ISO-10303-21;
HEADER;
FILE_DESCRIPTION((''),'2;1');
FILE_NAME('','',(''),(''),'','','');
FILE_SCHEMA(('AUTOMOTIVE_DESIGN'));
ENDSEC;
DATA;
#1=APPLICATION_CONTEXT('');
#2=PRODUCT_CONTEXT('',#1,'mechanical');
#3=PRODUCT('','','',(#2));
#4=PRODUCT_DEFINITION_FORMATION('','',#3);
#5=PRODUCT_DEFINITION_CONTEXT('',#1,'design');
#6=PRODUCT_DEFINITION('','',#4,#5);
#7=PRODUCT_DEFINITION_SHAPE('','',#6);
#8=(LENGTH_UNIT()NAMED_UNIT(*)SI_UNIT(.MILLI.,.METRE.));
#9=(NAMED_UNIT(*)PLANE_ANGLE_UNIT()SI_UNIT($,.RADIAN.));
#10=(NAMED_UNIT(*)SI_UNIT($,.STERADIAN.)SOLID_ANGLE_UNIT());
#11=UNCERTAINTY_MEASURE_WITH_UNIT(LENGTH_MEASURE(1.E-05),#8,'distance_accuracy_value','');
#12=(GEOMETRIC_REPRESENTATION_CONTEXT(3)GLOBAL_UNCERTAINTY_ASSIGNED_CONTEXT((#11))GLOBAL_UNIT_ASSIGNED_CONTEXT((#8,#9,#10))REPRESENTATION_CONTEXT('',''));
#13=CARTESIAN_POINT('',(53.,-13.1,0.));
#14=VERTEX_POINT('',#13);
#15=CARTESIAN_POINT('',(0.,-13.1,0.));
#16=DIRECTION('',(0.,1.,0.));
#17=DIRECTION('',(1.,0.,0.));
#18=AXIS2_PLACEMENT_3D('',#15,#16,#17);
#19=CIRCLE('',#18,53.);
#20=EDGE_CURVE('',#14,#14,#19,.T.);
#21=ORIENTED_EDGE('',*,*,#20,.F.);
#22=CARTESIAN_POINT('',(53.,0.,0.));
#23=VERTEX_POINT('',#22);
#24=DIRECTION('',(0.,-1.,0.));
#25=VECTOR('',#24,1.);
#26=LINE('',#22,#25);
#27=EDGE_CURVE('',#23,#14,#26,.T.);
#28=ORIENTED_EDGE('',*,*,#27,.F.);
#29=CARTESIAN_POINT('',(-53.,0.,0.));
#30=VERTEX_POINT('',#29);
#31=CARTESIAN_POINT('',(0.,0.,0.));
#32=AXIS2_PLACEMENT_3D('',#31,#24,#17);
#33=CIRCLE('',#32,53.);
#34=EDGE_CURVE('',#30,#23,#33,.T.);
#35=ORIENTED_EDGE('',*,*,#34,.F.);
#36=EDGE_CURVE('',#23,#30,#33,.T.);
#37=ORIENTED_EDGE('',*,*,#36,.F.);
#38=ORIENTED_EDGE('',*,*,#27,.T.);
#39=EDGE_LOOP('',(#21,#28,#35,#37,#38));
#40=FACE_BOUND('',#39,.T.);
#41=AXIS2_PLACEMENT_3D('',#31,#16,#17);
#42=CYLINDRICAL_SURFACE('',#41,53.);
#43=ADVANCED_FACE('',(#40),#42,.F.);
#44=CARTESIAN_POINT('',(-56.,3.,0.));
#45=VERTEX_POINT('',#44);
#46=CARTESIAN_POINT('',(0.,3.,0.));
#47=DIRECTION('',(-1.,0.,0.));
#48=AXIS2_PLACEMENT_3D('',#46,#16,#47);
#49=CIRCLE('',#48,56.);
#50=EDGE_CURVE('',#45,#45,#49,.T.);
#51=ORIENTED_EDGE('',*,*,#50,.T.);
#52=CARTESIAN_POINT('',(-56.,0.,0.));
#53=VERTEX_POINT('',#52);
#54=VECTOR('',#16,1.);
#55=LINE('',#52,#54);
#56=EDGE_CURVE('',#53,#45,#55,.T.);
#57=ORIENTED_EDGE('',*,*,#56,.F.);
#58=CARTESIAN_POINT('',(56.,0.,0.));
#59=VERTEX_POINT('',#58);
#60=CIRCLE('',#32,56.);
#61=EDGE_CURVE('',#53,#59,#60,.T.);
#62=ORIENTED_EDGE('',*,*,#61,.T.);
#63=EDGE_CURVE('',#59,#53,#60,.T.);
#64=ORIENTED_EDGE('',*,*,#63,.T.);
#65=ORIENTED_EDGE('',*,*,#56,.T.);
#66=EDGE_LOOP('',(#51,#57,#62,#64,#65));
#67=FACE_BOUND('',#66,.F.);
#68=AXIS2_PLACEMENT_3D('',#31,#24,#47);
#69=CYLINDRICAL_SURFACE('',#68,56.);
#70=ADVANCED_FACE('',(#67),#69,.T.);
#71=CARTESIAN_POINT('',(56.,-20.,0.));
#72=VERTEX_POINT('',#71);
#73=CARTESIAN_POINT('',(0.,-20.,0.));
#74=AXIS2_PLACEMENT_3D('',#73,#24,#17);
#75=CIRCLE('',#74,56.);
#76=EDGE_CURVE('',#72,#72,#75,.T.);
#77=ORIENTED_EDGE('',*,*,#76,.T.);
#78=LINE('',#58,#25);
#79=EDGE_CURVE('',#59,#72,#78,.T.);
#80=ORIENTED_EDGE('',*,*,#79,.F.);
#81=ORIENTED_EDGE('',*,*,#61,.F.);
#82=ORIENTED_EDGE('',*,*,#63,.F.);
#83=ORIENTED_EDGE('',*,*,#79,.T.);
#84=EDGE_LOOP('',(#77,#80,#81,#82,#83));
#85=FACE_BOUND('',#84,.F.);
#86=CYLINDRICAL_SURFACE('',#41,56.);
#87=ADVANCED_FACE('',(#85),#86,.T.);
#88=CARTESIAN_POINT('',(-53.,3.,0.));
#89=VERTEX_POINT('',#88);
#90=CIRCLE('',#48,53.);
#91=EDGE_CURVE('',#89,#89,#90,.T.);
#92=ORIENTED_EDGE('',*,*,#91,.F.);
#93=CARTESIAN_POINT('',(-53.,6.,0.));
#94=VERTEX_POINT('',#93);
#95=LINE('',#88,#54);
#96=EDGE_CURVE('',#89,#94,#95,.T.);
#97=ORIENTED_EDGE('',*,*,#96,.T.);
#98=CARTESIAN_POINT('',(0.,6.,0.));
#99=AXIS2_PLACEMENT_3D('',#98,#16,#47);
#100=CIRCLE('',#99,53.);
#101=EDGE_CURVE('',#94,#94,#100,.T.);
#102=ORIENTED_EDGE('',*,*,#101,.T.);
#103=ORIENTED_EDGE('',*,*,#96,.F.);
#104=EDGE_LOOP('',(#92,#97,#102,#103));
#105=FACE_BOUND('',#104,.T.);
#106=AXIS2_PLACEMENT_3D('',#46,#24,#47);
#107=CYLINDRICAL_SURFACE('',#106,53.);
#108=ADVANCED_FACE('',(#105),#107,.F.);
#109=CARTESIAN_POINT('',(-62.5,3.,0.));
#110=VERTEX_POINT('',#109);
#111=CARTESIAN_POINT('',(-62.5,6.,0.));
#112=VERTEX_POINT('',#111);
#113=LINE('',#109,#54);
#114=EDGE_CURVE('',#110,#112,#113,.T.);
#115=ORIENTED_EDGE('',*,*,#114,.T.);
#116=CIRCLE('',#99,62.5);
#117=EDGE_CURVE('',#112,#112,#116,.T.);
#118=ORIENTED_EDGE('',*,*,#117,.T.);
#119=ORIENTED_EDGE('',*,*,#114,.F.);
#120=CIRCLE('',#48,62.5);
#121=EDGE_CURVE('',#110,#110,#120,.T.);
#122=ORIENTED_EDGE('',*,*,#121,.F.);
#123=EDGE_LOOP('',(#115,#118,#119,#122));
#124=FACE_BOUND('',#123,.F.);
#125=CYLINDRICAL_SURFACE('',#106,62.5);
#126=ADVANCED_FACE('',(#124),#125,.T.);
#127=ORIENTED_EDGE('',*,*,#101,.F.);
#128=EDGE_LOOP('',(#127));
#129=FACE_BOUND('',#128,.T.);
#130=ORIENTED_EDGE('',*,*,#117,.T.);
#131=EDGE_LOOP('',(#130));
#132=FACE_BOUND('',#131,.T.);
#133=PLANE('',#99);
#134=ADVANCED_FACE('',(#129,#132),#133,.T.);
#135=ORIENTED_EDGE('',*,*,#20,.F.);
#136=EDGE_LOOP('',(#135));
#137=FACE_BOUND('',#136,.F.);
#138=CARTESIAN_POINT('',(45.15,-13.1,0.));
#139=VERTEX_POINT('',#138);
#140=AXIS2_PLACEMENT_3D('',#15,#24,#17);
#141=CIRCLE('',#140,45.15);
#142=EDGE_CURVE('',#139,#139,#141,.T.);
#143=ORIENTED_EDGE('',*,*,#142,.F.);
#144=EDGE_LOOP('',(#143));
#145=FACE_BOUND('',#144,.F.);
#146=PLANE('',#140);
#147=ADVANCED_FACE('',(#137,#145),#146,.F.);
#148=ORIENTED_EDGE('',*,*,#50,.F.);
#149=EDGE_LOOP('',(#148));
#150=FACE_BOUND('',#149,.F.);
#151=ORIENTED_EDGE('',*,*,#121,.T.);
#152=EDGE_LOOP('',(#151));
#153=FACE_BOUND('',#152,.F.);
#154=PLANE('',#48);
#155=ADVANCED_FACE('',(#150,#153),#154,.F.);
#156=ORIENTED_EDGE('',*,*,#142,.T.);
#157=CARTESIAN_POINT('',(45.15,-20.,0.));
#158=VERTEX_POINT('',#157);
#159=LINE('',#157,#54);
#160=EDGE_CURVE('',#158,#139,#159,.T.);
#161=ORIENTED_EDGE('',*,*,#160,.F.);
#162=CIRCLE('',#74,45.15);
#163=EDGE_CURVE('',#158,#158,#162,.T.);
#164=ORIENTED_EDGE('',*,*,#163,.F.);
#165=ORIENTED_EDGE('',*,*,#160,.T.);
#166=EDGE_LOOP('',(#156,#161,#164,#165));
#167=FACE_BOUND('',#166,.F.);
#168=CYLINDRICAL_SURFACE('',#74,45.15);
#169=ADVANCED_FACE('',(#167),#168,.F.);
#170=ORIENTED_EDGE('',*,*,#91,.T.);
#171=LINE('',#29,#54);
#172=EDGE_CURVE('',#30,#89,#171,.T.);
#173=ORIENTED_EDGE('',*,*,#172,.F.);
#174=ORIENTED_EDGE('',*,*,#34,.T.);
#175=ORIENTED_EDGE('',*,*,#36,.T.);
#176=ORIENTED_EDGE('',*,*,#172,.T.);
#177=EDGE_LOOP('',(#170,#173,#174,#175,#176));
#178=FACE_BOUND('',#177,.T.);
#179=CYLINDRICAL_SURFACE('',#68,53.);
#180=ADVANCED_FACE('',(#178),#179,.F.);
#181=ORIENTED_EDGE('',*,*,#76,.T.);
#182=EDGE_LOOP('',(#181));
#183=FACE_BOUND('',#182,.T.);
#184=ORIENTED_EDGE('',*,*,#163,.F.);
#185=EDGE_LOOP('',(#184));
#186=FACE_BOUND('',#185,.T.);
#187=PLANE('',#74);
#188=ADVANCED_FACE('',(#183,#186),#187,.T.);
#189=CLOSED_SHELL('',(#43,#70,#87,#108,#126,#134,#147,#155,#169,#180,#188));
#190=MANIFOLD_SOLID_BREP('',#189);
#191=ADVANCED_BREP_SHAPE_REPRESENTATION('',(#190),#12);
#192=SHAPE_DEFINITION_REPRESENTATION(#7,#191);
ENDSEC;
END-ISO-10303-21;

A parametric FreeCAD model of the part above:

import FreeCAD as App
import Part
import Sketcher

V = App.Vector
Q = App.Units.Quantity

doc = App.newDocument("Part")
params = doc.addObject("Spreadsheet::Sheet", "Params")
for row, (alias, value) in enumerate([
    ("sketch1_diameter", "112 mm"),
    ("sketch1_diameter2", "106 mm"),
    ("pad1_length", "20 mm"),
    ("sketch2_diameter", "112 mm"),
    ("sketch2_diameter2", "90.3 mm"),
    ("pad2_length", "6.9 mm"),
    ("sketch3_diameter", "112 mm"),
    ("sketch3_diameter2", "106 mm"),
    ("pad3_length", "3 mm"),
    ("sketch4_diameter", "125 mm"),
    ("sketch4_diameter2", "106 mm"),
    ("pad4_length", "3 mm"),
], start=1):
    params.set(f"A{row}", alias)
    params.set(f"B{row}", "=" + value)
    params.setAlias(f"B{row}", alias)

body = doc.addObject("PartDesign::Body", "Body")

# Sketch on XZ plane
sketch1 = doc.addObject("Sketcher::SketchObject", "Sketch")
body.addObject(sketch1)
sketch1.AttachmentSupport = (doc.XZ_Plane, [""])
sketch1.MapMode = "FlatFace"
sketch1.addGeometry([
    Part.Circle(V(0, 0, 0), V(0, 0, 1), 56),
    Part.Circle(V(0, 0, 0), V(0, 0, 1), 53),
], False)
sketch1.addConstraint([
    Sketcher.Constraint("Coincident", 0, 3, -1, 1),
    Sketcher.Constraint("Coincident", 1, 3, -1, 1),
    Sketcher.Constraint("Diameter", 0, Q("112 mm")),
    Sketcher.Constraint("Diameter", 1, Q("106 mm")),
])
sketch1.setExpression("Constraints[2]", "Params.sketch1_diameter")
sketch1.setExpression("Constraints[3]", "Params.sketch1_diameter2")
pad1 = doc.addObject("PartDesign::Pad", "Pad")
body.addObject(pad1)
pad1.Profile = sketch1
pad1.setExpression("Length", "Params.pad1_length")

# Sketch on XZ plane
sketch2 = doc.addObject("Sketcher::SketchObject", "Sketch001")
body.addObject(sketch2)
sketch2.AttachmentSupport = (doc.XZ_Plane, [""])
sketch2.MapMode = "FlatFace"
sketch2.AttachmentOffset = App.Placement(V(0, 0, 20), App.Rotation())
sketch2.addGeometry([
    Part.Circle(V(0, 0, 0), V(0, 0, 1), 56),
    Part.Circle(V(0, 0, 0), V(0, 0, 1), 45),
], False)
sketch2.addConstraint([
    Sketcher.Constraint("Coincident", 0, 3, -1, 1),
    Sketcher.Constraint("Coincident", 1, 3, -1, 1),
    Sketcher.Constraint("Diameter", 0, Q("112 mm")),
    Sketcher.Constraint("Diameter", 1, Q("90.3 mm")),
])
sketch2.setExpression("Constraints[2]", "Params.sketch2_diameter")
sketch2.setExpression("Constraints[3]", "Params.sketch2_diameter2")
pad2 = doc.addObject("PartDesign::Pad", "Pad001")
body.addObject(pad2)
pad2.Profile = sketch2
pad2.setExpression("Length", "Params.pad2_length")
pad2.Reversed = True

# Sketch on XZ plane
sketch3 = doc.addObject("Sketcher::SketchObject", "Sketch002")
body.addObject(sketch3)
sketch3.AttachmentSupport = (doc.XZ_Plane, [""])
sketch3.MapMode = "FlatFace"
sketch3.addGeometry([
    Part.Circle(V(0, 0, 0), V(0, 0, 1), 56),
    Part.Circle(V(0, 0, 0), V(0, 0, 1), 53),
], False)
sketch3.addConstraint([
    Sketcher.Constraint("Coincident", 0, 3, -1, 1),
    Sketcher.Constraint("Coincident", 1, 3, -1, 1),
    Sketcher.Constraint("Diameter", 0, Q("112 mm")),
    Sketcher.Constraint("Diameter", 1, Q("106 mm")),
])
sketch3.setExpression("Constraints[2]", "Params.sketch3_diameter")
sketch3.setExpression("Constraints[3]", "Params.sketch3_diameter2")
pad3 = doc.addObject("PartDesign::Pad", "Pad002")
body.addObject(pad3)
pad3.Profile = sketch3
pad3.setExpression("Length", "Params.pad3_length")
pad3.Reversed = True

# Sketch on XZ plane
sketch4 = doc.addObject("Sketcher::SketchObject", "Sketch003")
body.addObject(sketch4)
sketch4.AttachmentSupport = (doc.XZ_Plane, [""])
sketch4.MapMode = "FlatFace"
sketch4.AttachmentOffset = App.Placement(V(0, 0, -3), App.Rotation())
sketch4.addGeometry([
    Part.Circle(V(0, 0, 0), V(0, 0, 1), 62),
    Part.Circle(V(0, 0, 0), V(0, 0, 1), 53),
], False)
sketch4.addConstraint([
    Sketcher.Constraint("Coincident", 0, 3, -1, 1),
    Sketcher.Constraint("Coincident", 1, 3, -1, 1),
    Sketcher.Constraint("Diameter", 0, Q("125 mm")),
    Sketcher.Constraint("Diameter", 1, Q("106 mm")),
])
sketch4.setExpression("Constraints[2]", "Params.sketch4_diameter")
sketch4.setExpression("Constraints[3]", "Params.sketch4_diameter2")
pad4 = doc.addObject("PartDesign::Pad", "Pad003")
body.addObject(pad4)
pad4.Profile = sketch4
pad4.setExpression("Length", "Params.pad4_length")
pad4.Reversed = True

doc.recompute()
